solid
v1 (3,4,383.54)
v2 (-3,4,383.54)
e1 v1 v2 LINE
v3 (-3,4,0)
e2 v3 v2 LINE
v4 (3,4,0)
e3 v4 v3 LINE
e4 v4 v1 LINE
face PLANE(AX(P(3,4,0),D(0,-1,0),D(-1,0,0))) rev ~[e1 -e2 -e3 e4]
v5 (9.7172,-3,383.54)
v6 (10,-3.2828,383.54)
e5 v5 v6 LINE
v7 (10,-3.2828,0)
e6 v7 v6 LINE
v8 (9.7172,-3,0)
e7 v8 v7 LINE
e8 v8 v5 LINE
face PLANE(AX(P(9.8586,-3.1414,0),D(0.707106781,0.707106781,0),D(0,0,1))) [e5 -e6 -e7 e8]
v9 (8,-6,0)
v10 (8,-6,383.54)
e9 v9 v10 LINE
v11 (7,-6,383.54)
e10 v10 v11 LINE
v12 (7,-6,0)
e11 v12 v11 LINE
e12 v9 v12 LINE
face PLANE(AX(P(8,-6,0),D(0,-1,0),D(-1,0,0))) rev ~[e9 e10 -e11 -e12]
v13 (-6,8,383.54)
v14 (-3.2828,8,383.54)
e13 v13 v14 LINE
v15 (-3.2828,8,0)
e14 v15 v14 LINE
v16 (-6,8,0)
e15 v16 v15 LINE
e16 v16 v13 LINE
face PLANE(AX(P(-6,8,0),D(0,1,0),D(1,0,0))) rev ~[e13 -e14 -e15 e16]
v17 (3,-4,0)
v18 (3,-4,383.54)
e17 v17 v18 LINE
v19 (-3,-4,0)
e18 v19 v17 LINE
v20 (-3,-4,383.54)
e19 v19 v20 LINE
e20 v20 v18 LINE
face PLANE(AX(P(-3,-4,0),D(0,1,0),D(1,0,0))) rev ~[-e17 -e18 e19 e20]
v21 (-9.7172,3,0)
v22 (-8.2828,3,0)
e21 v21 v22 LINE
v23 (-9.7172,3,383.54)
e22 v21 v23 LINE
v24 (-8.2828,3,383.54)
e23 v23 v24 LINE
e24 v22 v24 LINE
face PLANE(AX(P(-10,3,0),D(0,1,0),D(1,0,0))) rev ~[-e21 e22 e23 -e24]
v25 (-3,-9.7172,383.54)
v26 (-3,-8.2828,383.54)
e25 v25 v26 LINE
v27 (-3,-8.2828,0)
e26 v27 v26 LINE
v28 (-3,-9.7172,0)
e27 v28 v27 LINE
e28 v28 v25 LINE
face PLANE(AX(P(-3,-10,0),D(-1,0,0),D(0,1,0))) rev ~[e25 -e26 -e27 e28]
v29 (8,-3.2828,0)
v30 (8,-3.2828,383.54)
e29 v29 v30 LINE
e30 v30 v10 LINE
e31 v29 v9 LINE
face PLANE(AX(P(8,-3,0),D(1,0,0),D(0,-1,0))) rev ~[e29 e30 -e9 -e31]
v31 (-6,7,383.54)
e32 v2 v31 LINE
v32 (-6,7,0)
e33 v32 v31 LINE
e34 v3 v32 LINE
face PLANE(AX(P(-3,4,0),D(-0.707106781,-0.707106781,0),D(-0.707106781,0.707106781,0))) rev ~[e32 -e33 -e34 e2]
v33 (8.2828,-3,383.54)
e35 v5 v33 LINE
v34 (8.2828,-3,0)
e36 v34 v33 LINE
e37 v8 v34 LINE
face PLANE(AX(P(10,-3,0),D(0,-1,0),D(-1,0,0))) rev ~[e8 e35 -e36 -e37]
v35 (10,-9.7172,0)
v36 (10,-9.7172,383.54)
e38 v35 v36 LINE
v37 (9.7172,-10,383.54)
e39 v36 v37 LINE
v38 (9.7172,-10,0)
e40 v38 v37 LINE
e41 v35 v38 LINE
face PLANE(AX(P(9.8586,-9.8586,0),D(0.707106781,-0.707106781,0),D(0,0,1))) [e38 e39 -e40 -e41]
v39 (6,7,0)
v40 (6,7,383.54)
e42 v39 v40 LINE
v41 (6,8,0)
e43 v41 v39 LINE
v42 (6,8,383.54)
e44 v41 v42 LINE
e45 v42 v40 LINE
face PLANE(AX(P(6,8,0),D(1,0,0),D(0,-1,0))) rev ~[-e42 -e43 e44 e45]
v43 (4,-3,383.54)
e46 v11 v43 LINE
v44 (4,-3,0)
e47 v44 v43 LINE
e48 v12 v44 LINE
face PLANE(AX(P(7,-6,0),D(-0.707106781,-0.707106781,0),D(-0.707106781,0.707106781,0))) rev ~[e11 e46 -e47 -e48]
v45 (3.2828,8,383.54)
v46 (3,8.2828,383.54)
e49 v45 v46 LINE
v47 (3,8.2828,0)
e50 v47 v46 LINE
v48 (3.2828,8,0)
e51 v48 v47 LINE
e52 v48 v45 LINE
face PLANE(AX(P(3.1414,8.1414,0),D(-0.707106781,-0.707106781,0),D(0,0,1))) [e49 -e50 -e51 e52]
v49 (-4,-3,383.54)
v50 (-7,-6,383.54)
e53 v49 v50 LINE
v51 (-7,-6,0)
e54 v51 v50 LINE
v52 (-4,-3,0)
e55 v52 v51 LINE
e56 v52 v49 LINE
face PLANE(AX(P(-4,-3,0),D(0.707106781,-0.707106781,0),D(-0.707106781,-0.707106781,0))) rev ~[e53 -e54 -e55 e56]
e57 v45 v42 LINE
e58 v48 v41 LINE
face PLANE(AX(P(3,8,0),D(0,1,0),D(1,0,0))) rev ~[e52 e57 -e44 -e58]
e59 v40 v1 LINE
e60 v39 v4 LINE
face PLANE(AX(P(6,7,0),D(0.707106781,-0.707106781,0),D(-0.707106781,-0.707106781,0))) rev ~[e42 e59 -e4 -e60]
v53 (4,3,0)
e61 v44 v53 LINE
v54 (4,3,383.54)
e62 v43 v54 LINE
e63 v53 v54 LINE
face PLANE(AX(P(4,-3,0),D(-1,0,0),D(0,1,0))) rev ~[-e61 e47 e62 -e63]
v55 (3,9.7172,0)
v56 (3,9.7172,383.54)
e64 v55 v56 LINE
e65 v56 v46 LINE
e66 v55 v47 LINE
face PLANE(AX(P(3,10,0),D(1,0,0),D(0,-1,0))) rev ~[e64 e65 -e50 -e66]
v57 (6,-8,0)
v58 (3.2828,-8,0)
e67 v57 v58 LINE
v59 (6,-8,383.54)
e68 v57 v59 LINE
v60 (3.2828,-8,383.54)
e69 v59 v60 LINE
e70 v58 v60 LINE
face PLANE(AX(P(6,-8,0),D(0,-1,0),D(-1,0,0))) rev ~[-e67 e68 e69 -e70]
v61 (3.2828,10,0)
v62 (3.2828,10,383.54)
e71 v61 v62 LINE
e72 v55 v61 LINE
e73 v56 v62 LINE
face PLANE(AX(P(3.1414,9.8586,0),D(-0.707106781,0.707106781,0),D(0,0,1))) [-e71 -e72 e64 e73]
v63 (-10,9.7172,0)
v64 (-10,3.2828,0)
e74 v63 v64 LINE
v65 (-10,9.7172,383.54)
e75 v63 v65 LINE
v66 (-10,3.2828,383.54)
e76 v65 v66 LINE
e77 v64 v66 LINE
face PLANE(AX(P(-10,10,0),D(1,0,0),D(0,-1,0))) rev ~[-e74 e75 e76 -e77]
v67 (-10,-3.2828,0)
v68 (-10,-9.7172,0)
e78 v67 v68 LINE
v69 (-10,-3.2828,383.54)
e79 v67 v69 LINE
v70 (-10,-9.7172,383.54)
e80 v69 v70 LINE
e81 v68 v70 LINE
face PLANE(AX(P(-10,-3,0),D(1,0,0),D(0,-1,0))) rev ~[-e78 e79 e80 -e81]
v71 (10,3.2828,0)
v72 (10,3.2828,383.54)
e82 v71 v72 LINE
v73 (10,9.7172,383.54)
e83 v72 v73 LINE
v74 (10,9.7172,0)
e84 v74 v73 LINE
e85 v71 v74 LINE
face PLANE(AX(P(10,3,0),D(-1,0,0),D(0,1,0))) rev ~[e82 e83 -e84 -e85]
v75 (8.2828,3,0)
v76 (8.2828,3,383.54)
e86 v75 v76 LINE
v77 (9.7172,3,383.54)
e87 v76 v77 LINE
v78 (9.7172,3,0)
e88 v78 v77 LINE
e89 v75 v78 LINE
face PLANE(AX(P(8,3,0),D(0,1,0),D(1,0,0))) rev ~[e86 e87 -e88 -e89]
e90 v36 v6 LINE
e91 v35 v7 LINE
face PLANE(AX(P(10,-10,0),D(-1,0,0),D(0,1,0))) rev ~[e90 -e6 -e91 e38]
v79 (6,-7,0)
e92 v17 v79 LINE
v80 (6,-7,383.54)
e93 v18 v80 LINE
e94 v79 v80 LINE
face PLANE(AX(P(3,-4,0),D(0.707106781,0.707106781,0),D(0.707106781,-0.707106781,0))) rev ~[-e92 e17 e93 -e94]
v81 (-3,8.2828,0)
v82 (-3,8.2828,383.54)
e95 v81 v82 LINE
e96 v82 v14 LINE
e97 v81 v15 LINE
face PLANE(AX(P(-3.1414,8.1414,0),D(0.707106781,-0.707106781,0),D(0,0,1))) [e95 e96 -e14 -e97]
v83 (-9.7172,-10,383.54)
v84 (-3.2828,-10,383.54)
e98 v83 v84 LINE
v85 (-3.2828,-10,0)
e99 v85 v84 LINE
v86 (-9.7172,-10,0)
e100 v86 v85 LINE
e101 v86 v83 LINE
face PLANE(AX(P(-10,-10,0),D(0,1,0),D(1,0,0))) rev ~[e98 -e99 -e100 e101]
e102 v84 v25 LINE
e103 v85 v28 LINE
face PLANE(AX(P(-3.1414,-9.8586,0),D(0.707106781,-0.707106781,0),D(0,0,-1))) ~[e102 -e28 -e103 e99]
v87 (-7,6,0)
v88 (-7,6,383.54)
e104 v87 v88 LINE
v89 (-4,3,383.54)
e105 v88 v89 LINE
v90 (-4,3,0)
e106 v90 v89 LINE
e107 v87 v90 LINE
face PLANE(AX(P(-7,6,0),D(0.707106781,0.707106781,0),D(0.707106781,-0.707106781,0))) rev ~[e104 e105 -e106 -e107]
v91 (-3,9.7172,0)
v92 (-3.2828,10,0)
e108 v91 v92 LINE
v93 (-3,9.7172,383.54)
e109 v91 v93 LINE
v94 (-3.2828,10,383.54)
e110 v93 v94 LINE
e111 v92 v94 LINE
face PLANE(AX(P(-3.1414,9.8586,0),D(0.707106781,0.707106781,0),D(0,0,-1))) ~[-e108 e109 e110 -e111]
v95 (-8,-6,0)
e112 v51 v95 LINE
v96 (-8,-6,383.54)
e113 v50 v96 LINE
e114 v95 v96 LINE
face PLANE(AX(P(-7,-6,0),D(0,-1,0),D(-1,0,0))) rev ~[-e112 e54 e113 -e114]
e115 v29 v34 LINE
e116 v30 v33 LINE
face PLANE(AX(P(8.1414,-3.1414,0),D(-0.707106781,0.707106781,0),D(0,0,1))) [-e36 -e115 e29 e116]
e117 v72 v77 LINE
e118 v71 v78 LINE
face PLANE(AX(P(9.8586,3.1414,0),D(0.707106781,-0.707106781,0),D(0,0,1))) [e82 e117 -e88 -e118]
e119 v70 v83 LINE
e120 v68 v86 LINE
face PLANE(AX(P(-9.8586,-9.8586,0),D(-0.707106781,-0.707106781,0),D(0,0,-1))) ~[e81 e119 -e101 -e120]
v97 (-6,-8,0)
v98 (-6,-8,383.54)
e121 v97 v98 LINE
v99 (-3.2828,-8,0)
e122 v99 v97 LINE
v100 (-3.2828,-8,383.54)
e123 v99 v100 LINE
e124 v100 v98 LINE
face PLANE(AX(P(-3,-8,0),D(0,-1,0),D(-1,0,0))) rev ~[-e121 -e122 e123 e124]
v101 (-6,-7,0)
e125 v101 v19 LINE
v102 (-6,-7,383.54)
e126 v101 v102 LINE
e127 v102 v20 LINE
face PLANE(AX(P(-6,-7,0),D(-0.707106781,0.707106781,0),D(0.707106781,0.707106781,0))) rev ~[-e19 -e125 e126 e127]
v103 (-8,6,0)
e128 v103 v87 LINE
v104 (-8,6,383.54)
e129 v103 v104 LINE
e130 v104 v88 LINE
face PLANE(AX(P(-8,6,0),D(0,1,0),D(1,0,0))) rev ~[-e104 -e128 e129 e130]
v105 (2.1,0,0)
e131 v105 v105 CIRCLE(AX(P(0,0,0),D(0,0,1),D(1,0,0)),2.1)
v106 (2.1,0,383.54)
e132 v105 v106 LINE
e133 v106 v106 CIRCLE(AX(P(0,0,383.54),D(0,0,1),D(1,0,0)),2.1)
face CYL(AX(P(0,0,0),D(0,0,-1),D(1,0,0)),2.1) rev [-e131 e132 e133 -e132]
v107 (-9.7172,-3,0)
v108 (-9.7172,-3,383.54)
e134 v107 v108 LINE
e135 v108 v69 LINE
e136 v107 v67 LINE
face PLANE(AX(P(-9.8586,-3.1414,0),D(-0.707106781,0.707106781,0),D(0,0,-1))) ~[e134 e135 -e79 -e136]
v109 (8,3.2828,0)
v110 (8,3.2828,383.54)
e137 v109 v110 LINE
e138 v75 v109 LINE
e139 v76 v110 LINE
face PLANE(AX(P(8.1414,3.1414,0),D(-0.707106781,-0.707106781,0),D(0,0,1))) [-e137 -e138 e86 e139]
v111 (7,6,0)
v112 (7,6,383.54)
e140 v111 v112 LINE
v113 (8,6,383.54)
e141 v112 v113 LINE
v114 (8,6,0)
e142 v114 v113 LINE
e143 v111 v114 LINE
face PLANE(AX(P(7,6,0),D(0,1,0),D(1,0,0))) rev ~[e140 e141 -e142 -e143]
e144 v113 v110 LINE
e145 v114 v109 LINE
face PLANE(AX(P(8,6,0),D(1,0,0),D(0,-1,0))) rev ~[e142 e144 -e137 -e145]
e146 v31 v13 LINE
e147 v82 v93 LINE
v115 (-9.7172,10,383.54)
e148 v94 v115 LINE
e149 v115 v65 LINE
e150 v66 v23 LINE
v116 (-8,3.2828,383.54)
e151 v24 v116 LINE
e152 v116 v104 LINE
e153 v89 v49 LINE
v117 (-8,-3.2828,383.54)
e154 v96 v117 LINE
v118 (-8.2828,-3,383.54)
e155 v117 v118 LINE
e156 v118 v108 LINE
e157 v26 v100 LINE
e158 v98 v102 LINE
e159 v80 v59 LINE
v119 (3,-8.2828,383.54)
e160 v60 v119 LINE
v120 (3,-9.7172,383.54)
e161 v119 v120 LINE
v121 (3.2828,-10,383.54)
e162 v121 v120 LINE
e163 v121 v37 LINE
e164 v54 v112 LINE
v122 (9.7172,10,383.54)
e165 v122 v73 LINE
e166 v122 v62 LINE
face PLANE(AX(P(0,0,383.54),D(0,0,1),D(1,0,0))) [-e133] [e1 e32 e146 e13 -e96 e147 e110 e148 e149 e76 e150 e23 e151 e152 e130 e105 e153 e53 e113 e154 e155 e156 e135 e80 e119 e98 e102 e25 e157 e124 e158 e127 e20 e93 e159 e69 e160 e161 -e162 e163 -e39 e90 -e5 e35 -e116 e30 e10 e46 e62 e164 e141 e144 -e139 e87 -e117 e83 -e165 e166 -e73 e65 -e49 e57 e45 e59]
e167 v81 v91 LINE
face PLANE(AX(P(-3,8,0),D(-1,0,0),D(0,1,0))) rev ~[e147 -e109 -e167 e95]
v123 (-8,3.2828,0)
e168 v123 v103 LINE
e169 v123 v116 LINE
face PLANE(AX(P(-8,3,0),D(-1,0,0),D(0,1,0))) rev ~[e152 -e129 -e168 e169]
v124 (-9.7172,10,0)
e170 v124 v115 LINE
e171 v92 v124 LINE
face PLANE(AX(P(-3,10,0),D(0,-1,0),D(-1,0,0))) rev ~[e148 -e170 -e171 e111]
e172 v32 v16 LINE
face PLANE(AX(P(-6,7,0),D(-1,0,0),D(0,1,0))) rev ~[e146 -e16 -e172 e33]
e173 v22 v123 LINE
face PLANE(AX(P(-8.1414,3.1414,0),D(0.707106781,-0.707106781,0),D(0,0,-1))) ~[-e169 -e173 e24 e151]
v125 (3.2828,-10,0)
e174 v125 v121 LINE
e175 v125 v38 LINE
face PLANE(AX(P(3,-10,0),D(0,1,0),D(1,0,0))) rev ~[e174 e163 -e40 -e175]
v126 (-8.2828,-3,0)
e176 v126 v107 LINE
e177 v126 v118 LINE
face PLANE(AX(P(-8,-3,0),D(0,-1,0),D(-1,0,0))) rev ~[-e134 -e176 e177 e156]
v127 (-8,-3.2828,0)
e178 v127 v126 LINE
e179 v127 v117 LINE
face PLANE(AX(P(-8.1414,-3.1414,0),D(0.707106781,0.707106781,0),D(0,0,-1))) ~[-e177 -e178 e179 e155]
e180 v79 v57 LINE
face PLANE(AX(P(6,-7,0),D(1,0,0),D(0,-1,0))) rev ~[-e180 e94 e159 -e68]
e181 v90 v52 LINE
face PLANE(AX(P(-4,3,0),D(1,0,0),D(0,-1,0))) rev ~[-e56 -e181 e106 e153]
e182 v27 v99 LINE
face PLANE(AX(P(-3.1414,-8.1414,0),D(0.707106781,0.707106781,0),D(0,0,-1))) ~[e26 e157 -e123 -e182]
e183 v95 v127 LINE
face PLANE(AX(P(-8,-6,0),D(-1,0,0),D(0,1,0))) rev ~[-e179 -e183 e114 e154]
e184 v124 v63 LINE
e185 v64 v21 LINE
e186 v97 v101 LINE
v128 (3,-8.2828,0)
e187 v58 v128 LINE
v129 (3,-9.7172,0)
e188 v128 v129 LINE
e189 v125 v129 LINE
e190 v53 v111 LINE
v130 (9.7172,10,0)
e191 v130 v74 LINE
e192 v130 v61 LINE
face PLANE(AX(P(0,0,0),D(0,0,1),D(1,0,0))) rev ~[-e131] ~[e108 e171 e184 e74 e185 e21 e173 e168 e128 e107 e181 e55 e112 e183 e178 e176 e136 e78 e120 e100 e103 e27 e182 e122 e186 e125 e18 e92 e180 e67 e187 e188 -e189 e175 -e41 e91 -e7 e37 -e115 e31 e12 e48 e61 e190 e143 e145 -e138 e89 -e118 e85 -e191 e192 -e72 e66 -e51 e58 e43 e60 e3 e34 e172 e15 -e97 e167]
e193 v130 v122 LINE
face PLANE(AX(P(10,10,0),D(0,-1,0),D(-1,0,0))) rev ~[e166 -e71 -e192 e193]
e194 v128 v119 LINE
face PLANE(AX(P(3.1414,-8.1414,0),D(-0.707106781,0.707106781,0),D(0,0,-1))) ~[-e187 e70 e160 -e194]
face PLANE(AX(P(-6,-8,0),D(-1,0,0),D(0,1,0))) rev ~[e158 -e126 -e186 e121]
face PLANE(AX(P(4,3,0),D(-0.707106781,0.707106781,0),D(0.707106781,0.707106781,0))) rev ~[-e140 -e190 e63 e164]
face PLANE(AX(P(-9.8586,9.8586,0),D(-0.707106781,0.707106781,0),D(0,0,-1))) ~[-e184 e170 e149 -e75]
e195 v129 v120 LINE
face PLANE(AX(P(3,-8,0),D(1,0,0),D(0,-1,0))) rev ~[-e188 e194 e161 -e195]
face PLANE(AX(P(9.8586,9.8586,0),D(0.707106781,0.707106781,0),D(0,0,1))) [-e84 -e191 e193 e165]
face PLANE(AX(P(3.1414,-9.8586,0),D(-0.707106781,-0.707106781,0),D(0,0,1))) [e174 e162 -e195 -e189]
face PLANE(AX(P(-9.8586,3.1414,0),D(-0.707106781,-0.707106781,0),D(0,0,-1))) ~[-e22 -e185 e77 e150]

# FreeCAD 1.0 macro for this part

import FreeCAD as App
import Part
import Sketcher

V = App.Vector


def edges_at(feature, points):
    """Names of the edges that pass closest to the given points."""
    edges = feature.Shape.Edges
    near = lambda p: min(range(len(edges)), key=lambda i: edges[i].distToShape(Part.Vertex(*p))[0])
    return sorted({f"Edge{near(p) + 1}" for p in points})

doc = App.newDocument("Part")
body = doc.addObject("PartDesign::Body", "Body")

# Sketch on XY plane
sketch1 = body.newObject("Sketcher::SketchObject", "Sketch")
sketch1.AttachmentSupport = (doc.getObject("XY_Plane"), [""])
sketch1.MapMode = "FlatFace"
sketch1.addGeometry([
    Part.LineSegment(V(-3, 8, 0), V(-3, 10, 0)),  # 0
    Part.LineSegment(V(-3, 10, 0), V(-10, 10, 0)),  # 1
    Part.LineSegment(V(-10, 10, 0), V(-10, 3, 0)),  # 2
    Part.LineSegment(V(-10, 3, 0), V(-8, 3, 0)),  # 3
    Part.LineSegment(V(-8, 3, 0), V(-8, 6, 0)),  # 4
    Part.LineSegment(V(-8, 6, 0), V(-7, 6, 0)),  # 5
    Part.LineSegment(V(-7, 6, 0), V(-4, 3, 0)),  # 6
    Part.LineSegment(V(-4, 3, 0), V(-4, -3, 0)),  # 7
    Part.LineSegment(V(-4, -3, 0), V(-7, -6, 0)),  # 8
    Part.LineSegment(V(-7, -6, 0), V(-8, -6, 0)),  # 9
    Part.LineSegment(V(-8, -6, 0), V(-8, -3, 0)),  # 10
    Part.LineSegment(V(-8, -3, 0), V(-10, -3, 0)),  # 11
    Part.LineSegment(V(-10, -3, 0), V(-10, -10, 0)),  # 12
    Part.LineSegment(V(-10, -10, 0), V(-3, -10, 0)),  # 13
    Part.LineSegment(V(-3, -10, 0), V(-3, -8, 0)),  # 14
    Part.LineSegment(V(-3, -8, 0), V(-6, -8, 0)),  # 15
    Part.LineSegment(V(-6, -8, 0), V(-6, -7, 0)),  # 16
    Part.LineSegment(V(-6, -7, 0), V(-3, -4, 0)),  # 17
    Part.LineSegment(V(-3, -4, 0), V(3, -4, 0)),  # 18
    Part.LineSegment(V(3, -4, 0), V(6, -7, 0)),  # 19
    Part.LineSegment(V(6, -7, 0), V(6, -8, 0)),  # 20
    Part.LineSegment(V(6, -8, 0), V(3, -8, 0)),  # 21
    Part.LineSegment(V(3, -8, 0), V(3, -10, 0)),  # 22
    Part.LineSegment(V(3, -10, 0), V(10, -10, 0)),  # 23
    Part.LineSegment(V(10, -10, 0), V(10, -3, 0)),  # 24
    Part.LineSegment(V(10, -3, 0), V(8, -3, 0)),  # 25
    Part.LineSegment(V(8, -3, 0), V(8, -6, 0)),  # 26
    Part.LineSegment(V(8, -6, 0), V(7, -6, 0)),  # 27
    Part.LineSegment(V(7, -6, 0), V(4, -3, 0)),  # 28
    Part.LineSegment(V(4, -3, 0), V(4, 3, 0)),  # 29
    Part.LineSegment(V(4, 3, 0), V(7, 6, 0)),  # 30
    Part.LineSegment(V(7, 6, 0), V(8, 6, 0)),  # 31
    Part.LineSegment(V(8, 6, 0), V(8, 3, 0)),  # 32
    Part.LineSegment(V(8, 3, 0), V(10, 3, 0)),  # 33
    Part.LineSegment(V(10, 3, 0), V(10, 10, 0)),  # 34
    Part.LineSegment(V(10, 10, 0), V(3, 10, 0)),  # 35
    Part.LineSegment(V(3, 10, 0), V(3, 8, 0)),  # 36
    Part.LineSegment(V(3, 8, 0), V(6, 8, 0)),  # 37
    Part.LineSegment(V(6, 8, 0), V(6, 7, 0)),  # 38
    Part.LineSegment(V(6, 7, 0), V(3, 4, 0)),  # 39
    Part.LineSegment(V(3, 4, 0), V(-3, 4, 0)),  # 40
    Part.LineSegment(V(-3, 4, 0), V(-6, 7, 0)),  # 41
    Part.LineSegment(V(-6, 7, 0), V(-6, 8, 0)),  # 42
    Part.LineSegment(V(-6, 8, 0), V(-3, 8, 0)),  # 43
    Part.Circle(V(0, 0, 0), V(0, 0, 1), 2.1),  # 44
], False)
sketch1.addConstraint([
    Sketcher.Constraint("Coincident", 0, 2, 1, 1),
    Sketcher.Constraint("Coincident", 1, 2, 2, 1),
    Sketcher.Constraint("Coincident", 2, 2, 3, 1),
    Sketcher.Constraint("Coincident", 3, 2, 4, 1),
    Sketcher.Constraint("Coincident", 4, 2, 5, 1),
    Sketcher.Constraint("Coincident", 5, 2, 6, 1),
    Sketcher.Constraint("Coincident", 6, 2, 7, 1),
    Sketcher.Constraint("Coincident", 7, 2, 8, 1),
    Sketcher.Constraint("Coincident", 8, 2, 9, 1),
    Sketcher.Constraint("Coincident", 9, 2, 10, 1),
    Sketcher.Constraint("Coincident", 10, 2, 11, 1),
    Sketcher.Constraint("Coincident", 11, 2, 12, 1),
    Sketcher.Constraint("Coincident", 12, 2, 13, 1),
    Sketcher.Constraint("Coincident", 13, 2, 14, 1),
    Sketcher.Constraint("Coincident", 14, 2, 15, 1),
    Sketcher.Constraint("Coincident", 15, 2, 16, 1),
    Sketcher.Constraint("Coincident", 16, 2, 17, 1),
    Sketcher.Constraint("Coincident", 17, 2, 18, 1),
    Sketcher.Constraint("Coincident", 18, 2, 19, 1),
    Sketcher.Constraint("Coincident", 19, 2, 20, 1),
    Sketcher.Constraint("Coincident", 20, 2, 21, 1),
    Sketcher.Constraint("Coincident", 21, 2, 22, 1),
    Sketcher.Constraint("Coincident", 22, 2, 23, 1),
    Sketcher.Constraint("Coincident", 23, 2, 24, 1),
    Sketcher.Constraint("Coincident", 24, 2, 25, 1),
    Sketcher.Constraint("Coincident", 25, 2, 26, 1),
    Sketcher.Constraint("Coincident", 26, 2, 27, 1),
    Sketcher.Constraint("Coincident", 27, 2, 28, 1),
    Sketcher.Constraint("Coincident", 28, 2, 29, 1),
    Sketcher.Constraint("Coincident", 29, 2, 30, 1),
    Sketcher.Constraint("Coincident", 30, 2, 31, 1),
    Sketcher.Constraint("Coincident", 31, 2, 32, 1),
    Sketcher.Constraint("Coincident", 32, 2, 33, 1),
    Sketcher.Constraint("Coincident", 33, 2, 34, 1),
    Sketcher.Constraint("Coincident", 34, 2, 35, 1),
    Sketcher.Constraint("Coincident", 35, 2, 36, 1),
    Sketcher.Constraint("Coincident", 36, 2, 37, 1),
    Sketcher.Constraint("Coincident", 37, 2, 38, 1),
    Sketcher.Constraint("Coincident", 38, 2, 39, 1),
    Sketcher.Constraint("Coincident", 39, 2, 40, 1),
    Sketcher.Constraint("Coincident", 40, 2, 41, 1),
    Sketcher.Constraint("Coincident", 41, 2, 42, 1),
    Sketcher.Constraint("Coincident", 42, 2, 43, 1),
    Sketcher.Constraint("Coincident", 43, 2, 0, 1),
    Sketcher.Constraint("Vertical", 0),
    Sketcher.Constraint("Horizontal", 1),
    Sketcher.Constraint("Vertical", 2),
    Sketcher.Constraint("Horizontal", 3),
    Sketcher.Constraint("Vertical", 4),
    Sketcher.Constraint("Horizontal", 5),
    Sketcher.Constraint("Vertical", 7),
    Sketcher.Constraint("Horizontal", 9),
    Sketcher.Constraint("Vertical", 10),
    Sketcher.Constraint("Horizontal", 11),
    Sketcher.Constraint("Vertical", 12),
    Sketcher.Constraint("Horizontal", 13),
    Sketcher.Constraint("Vertical", 14),
    Sketcher.Constraint("Horizontal", 15),
    Sketcher.Constraint("Vertical", 16),
    Sketcher.Constraint("Horizontal", 18),
    Sketcher.Constraint("Vertical", 20),
    Sketcher.Constraint("Horizontal", 21),
    Sketcher.Constraint("Vertical", 22),
    Sketcher.Constraint("Horizontal", 23),
    Sketcher.Constraint("Vertical", 24),
    Sketcher.Constraint("Horizontal", 25),
    Sketcher.Constraint("Vertical", 26),
    Sketcher.Constraint("Horizontal", 27),
    Sketcher.Constraint("Vertical", 29),
    Sketcher.Constraint("Horizontal", 31),
    Sketcher.Constraint("Vertical", 32),
    Sketcher.Constraint("Horizontal", 33),
    Sketcher.Constraint("Vertical", 34),
    Sketcher.Constraint("Horizontal", 35),
    Sketcher.Constraint("Vertical", 36),
    Sketcher.Constraint("Horizontal", 37),
    Sketcher.Constraint("Vertical", 38),
    Sketcher.Constraint("Horizontal", 40),
    Sketcher.Constraint("Vertical", 42),
    Sketcher.Constraint("Horizontal", 43),
    Sketcher.Constraint("Coincident", 44, 3, -1, 1),
    Sketcher.Constraint("Symmetric", 0, 2, 22, 2, -1, 1),
    Sketcher.Constraint("Symmetric", 2, 2, 24, 2, -1, 1),
    Sketcher.Constraint("Symmetric", 4, 2, 26, 2, -1, 1),
    Sketcher.Constraint("Symmetric", 6, 2, 28, 2, -1, 1),
    Sketcher.Constraint("Symmetric", 8, 2, 30, 2, -1, 1),
    Sketcher.Constraint("Symmetric", 10, 2, 32, 2, -1, 1),
    Sketcher.Constraint("Symmetric", 12, 2, 34, 2, -1, 1),
    Sketcher.Constraint("Symmetric", 14, 2, 36, 2, -1, 1),
    Sketcher.Constraint("Symmetric", 16, 2, 38, 2, -1, 1),
    Sketcher.Constraint("Symmetric", 17, 2, 39, 2, -1, 1),
    Sketcher.Constraint("Symmetric", 19, 2, 41, 2, -1, 1),
    Sketcher.Constraint("Symmetric", 16, 2, 19, 2, -2),
    Sketcher.Constraint("Symmetric", 14, 2, 21, 2, -2),
    Sketcher.Constraint("Symmetric", 12, 2, 23, 2, -2),
    Sketcher.Constraint("Symmetric", 10, 2, 25, 2, -2),
    Sketcher.Constraint("Symmetric", 8, 2, 27, 2, -2),
    Sketcher.Constraint("Perpendicular", 6, 8),
    Sketcher.Constraint("Parallel", 8, 17),
    Sketcher.Constraint("Perpendicular", 17, 19),
    Sketcher.Constraint("Parallel", 19, 28),
    Sketcher.Constraint("Perpendicular", 28, 30),
    Sketcher.Constraint("Perpendicular", 39, 41),
    Sketcher.Constraint("Horizontal", 3, 2, 6, 2),
    Sketcher.Constraint("Horizontal", 7, 2, 10, 2),
    Sketcher.Constraint("Horizontal", 37, 2, 42, 2),
    Sketcher.Constraint("Vertical", 14, 2, 17, 2),
    Sketcher.Constraint("Equal", 33, 0),
    Sketcher.Constraint("Equal", 35, 2),
    Sketcher.Constraint("Equal", 43, 4),
    Sketcher.Constraint("Equal", 40, 7),
    Sketcher.Constraint("Equal", 31, 16),
    Sketcher.Constraint("Diameter", 44, 4.2),
    Sketcher.Constraint("DistanceX", 1, 2, 1, 1, 7.0),
    Sketcher.Constraint("DistanceX", 3, 1, 3, 2, 2.0),
    Sketcher.Constraint("DistanceX", 5, 1, 5, 2, 1.0),
    Sketcher.Constraint("DistanceX", 15, 2, 15, 1, 3.0),
    Sketcher.Constraint("DistanceX", 18, 1, 18, 2, 6.0),
])
pad1 = body.newObject("PartDesign::Pad", "Pad")
pad1.Profile = sketch1
pad1.Length = 383.54
doc.recompute()

chamfer = body.newObject("PartDesign::Chamfer", "Chamfer")
chamfer.Base = (pad1, edges_at(pad1, [
    (-8, -3, 191.77),
    (-8, 3, 191.77),
    (-10, 3, 191.77),
    (-10, 10, 191.77),
    (-3, 10, 191.77),
    (-3, 8, 191.77),
    (3, 8, 191.77),
    (3, 10, 191.77),
    (10, 10, 191.77),
    (10, 3, 191.77),
    (8, 3, 191.77),
    (8, -3, 191.77),
    (10, -3, 191.77),
    (10, -10, 191.77),
    (3, -10, 191.77),
    (3, -8, 191.77),
    (-3, -8, 191.77),
    (-3, -10, 191.77),
    (-10, -10, 191.77),
    (-10, -3, 191.77),
]))
chamfer.Size = 0.2828

doc.recompute()
